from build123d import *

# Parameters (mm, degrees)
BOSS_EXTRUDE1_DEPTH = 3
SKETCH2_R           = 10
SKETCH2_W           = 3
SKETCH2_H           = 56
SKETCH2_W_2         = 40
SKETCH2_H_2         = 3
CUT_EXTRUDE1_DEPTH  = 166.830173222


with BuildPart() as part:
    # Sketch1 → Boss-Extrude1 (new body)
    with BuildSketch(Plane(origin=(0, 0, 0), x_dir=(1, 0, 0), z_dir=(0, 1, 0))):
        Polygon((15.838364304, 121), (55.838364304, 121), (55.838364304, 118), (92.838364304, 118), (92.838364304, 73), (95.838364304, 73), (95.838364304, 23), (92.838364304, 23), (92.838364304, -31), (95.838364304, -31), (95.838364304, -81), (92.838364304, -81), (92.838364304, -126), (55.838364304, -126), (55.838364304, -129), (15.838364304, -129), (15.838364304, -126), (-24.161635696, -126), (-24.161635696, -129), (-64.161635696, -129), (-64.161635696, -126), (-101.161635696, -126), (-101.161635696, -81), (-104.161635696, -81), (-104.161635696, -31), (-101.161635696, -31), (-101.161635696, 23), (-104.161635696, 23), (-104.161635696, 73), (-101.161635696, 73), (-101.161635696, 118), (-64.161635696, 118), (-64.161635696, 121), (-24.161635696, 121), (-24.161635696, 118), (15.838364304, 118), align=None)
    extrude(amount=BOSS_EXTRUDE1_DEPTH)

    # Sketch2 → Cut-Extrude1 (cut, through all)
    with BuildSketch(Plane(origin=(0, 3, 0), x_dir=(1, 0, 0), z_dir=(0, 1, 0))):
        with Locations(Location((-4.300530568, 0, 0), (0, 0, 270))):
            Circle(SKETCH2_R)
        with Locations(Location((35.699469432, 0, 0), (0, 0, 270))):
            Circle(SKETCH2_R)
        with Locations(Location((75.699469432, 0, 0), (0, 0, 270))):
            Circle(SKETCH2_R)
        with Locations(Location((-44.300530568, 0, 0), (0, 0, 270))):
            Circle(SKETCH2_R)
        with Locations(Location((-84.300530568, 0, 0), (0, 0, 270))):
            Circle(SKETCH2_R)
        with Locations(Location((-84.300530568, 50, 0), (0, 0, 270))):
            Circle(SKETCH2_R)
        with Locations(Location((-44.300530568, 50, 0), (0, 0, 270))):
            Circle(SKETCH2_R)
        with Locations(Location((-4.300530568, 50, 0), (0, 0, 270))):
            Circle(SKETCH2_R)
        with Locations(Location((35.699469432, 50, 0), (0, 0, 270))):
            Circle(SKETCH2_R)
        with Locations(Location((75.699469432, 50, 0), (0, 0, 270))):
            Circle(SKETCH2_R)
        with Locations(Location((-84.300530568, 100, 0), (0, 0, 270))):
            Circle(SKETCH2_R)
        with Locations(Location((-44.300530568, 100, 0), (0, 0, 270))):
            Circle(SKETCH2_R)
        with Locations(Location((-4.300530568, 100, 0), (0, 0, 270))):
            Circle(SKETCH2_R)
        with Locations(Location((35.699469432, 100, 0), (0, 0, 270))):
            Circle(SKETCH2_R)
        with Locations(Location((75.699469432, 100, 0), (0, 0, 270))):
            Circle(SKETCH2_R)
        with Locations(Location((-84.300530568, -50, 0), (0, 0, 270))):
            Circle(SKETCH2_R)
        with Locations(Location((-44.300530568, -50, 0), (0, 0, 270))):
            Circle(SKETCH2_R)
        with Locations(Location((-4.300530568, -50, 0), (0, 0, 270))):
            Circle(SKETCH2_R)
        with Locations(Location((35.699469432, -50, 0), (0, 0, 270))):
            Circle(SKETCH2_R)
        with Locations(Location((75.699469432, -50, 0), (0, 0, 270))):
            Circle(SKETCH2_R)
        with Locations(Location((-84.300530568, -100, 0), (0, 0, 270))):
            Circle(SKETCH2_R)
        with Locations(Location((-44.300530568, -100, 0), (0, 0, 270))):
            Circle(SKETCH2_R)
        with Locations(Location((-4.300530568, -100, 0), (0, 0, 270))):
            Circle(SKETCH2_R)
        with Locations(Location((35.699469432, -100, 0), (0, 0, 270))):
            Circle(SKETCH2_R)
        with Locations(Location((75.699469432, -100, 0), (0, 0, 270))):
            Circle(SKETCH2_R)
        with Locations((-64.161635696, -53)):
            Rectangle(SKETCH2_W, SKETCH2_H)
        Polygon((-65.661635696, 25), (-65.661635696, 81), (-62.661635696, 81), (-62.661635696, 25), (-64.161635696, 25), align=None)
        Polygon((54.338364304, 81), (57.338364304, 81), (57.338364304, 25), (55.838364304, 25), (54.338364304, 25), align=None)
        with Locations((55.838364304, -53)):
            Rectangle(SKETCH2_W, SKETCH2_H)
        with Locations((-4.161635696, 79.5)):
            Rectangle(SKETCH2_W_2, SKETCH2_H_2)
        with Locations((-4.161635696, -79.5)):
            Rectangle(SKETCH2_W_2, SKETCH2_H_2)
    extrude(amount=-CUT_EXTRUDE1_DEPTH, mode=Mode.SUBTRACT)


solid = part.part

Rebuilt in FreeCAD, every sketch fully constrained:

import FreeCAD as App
import Part
import Sketcher
Q = App.Units.Quantity


def add_polygon(sketch, points):
    """Adds a closed chain of lines whose ends are joined by coincident constraints."""
    first, n = sketch.GeometryCount, len(points)
    for a, b in zip(points, points[1:] + points[:1]):
        sketch.addGeometry(Part.LineSegment(App.Vector(*a, 0), App.Vector(*b, 0)), False)
    for i in range(n):
        sketch.addConstraint(Sketcher.Constraint("Coincident", first + i, 2, first + (i + 1) % n, 1))

doc = App.newDocument("Part")
body = doc.addObject("PartDesign::Body", "Body")

# Sketch on XZ plane
sketch1 = body.newObject("Sketcher::SketchObject", "Sketch")
sketch1.AttachmentSupport = (doc.getObject("XZ_Plane"), [""])
sketch1.MapMode = "FlatFace"
add_polygon(sketch1, [(55.8, -121), (15.8, -121), (15.8, -118), (-24.2, -118), (-24.2, -121), (-64.2, -121), (-64.2, -118), (-101.2, -118), (-101.2, -73), (-104.2, -73), (-104.2, -23), (-101.2, -23), (-101.2, 31), (-104.2, 31), (-104.2, 81), (-101.2, 81), (-101.2, 126), (-64.2, 126), (-64.2, 129), (-24.2, 129), (-24.2, 126), (15.8, 126), (15.8, 129), (55.8, 129), (55.8, 126), (92.8, 126), (92.8, 81), (95.8, 81), (95.8, 31), (92.8, 31), (92.8, -23), (95.8, -23), (95.8, -73), (92.8, -73), (92.8, -118), (55.8, -118)])  # lines 0-35
sketch1.addConstraint(Sketcher.Constraint("Horizontal", 0))
sketch1.addConstraint(Sketcher.Constraint("Vertical", 1))
sketch1.addConstraint(Sketcher.Constraint("Horizontal", 2))
sketch1.addConstraint(Sketcher.Constraint("Vertical", 3))
sketch1.addConstraint(Sketcher.Constraint("Horizontal", 4))
sketch1.addConstraint(Sketcher.Constraint("Vertical", 5))
sketch1.addConstraint(Sketcher.Constraint("Horizontal", 6))
sketch1.addConstraint(Sketcher.Constraint("Vertical", 7))
sketch1.addConstraint(Sketcher.Constraint("Horizontal", 8))
sketch1.addConstraint(Sketcher.Constraint("Vertical", 9))
sketch1.addConstraint(Sketcher.Constraint("Horizontal", 10))
sketch1.addConstraint(Sketcher.Constraint("Vertical", 11))
sketch1.addConstraint(Sketcher.Constraint("Horizontal", 12))
sketch1.addConstraint(Sketcher.Constraint("Vertical", 13))
sketch1.addConstraint(Sketcher.Constraint("Horizontal", 14))
sketch1.addConstraint(Sketcher.Constraint("Vertical", 15))
sketch1.addConstraint(Sketcher.Constraint("Horizontal", 16))
sketch1.addConstraint(Sketcher.Constraint("Vertical", 17))
sketch1.addConstraint(Sketcher.Constraint("Horizontal", 18))
sketch1.addConstraint(Sketcher.Constraint("Vertical", 19))
sketch1.addConstraint(Sketcher.Constraint("Horizontal", 20))
sketch1.addConstraint(Sketcher.Constraint("Vertical", 21))
sketch1.addConstraint(Sketcher.Constraint("Horizontal", 22))
sketch1.addConstraint(Sketcher.Constraint("Vertical", 23))
sketch1.addConstraint(Sketcher.Constraint("Horizontal", 24))
sketch1.addConstraint(Sketcher.Constraint("Vertical", 25))
sketch1.addConstraint(Sketcher.Constraint("Horizontal", 26))
sketch1.addConstraint(Sketcher.Constraint("Vertical", 27))
sketch1.addConstraint(Sketcher.Constraint("Horizontal", 28))
sketch1.addConstraint(Sketcher.Constraint("Vertical", 29))
sketch1.addConstraint(Sketcher.Constraint("Horizontal", 30))
sketch1.addConstraint(Sketcher.Constraint("Vertical", 31))
sketch1.addConstraint(Sketcher.Constraint("Horizontal", 32))
sketch1.addConstraint(Sketcher.Constraint("Vertical", 33))
sketch1.addConstraint(Sketcher.Constraint("Horizontal", 34))
sketch1.addConstraint(Sketcher.Constraint("Vertical", 35))
sketch1.addConstraint(Sketcher.Constraint("Horizontal", 0, 2, 3, 2))
sketch1.addConstraint(Sketcher.Constraint("Horizontal", 2, 2, 5, 2))
sketch1.addConstraint(Sketcher.Constraint("Horizontal", 16, 2, 19, 2))
sketch1.addConstraint(Sketcher.Constraint("Horizontal", 18, 2, 21, 2))
sketch1.addConstraint(Sketcher.Constraint("Horizontal", 20, 2, 23, 2))
sketch1.addConstraint(Sketcher.Constraint("Horizontal", 14, 2, 25, 2))
sketch1.addConstraint(Sketcher.Constraint("Horizontal", 12, 2, 27, 2))
sketch1.addConstraint(Sketcher.Constraint("Horizontal", 10, 2, 29, 2))
sketch1.addConstraint(Sketcher.Constraint("Horizontal", 8, 2, 31, 2))
sketch1.addConstraint(Sketcher.Constraint("Horizontal", 6, 2, 33, 2))
sketch1.addConstraint(Sketcher.Constraint("Vertical", 7, 2, 10, 2))
sketch1.addConstraint(Sketcher.Constraint("Vertical", 9, 2, 12, 2))
sketch1.addConstraint(Sketcher.Constraint("Vertical", 11, 2, 14, 2))
sketch1.addConstraint(Sketcher.Constraint("Vertical", 5, 2, 16, 2))
sketch1.addConstraint(Sketcher.Constraint("Vertical", 3, 2, 18, 2))
sketch1.addConstraint(Sketcher.Constraint("Vertical", 1, 2, 20, 2))
sketch1.addConstraint(Sketcher.Constraint("Vertical", 25, 2, 28, 2))
sketch1.addConstraint(Sketcher.Constraint("Vertical", 27, 2, 30, 2))
sketch1.addConstraint(Sketcher.Constraint("Vertical", 29, 2, 32, 2))
sketch1.addConstraint(Sketcher.Constraint("Vertical", 23, 2, 34, 2))
sketch1.addConstraint(Sketcher.Constraint("Equal", 0, 2))
sketch1.addConstraint(Sketcher.Constraint("Equal", 2, 4))
sketch1.addConstraint(Sketcher.Constraint("Equal", 16, 24))
sketch1.addConstraint(Sketcher.Constraint("Equal", 14, 26))
sketch1.addConstraint(Sketcher.Constraint("Equal", 32, 1))
sketch1.addConstraint(Sketcher.Constraint("Equal", 9, 13))
sketch1.addConstraint(Sketcher.Constraint("Equal", 7, 15))
sketch1.addConstraint(Sketcher.Constraint("Equal", 5, 17))
sketch1.addConstraint(Sketcher.Constraint("DistanceX", 0, 2, 0, 1, Q("40 mm")))
sketch1.addConstraint(Sketcher.Constraint("DistanceX", 6, 2, 6, 1, Q("37 mm")))
sketch1.addConstraint(Sketcher.Constraint("DistanceX", 8, 2, 8, 1, Q("3 mm")))
sketch1.addConstraint(Sketcher.Constraint("DistanceY", 7, 1, 7, 2, Q("45 mm")))
sketch1.addConstraint(Sketcher.Constraint("DistanceY", 9, 1, 9, 2, Q("50 mm")))
sketch1.addConstraint(Sketcher.Constraint("DistanceY", 11, 1, 11, 2, Q("54 mm")))
sketch1.addConstraint(Sketcher.Constraint("DistanceY", 0, 2, -1, 1, Q("121 mm")))
sketch1.addConstraint(Sketcher.Constraint("DistanceX", -1, 1, 0, 2, Q("15.838364 mm")))
pad1 = body.newObject("PartDesign::Pad", "Pad")
pad1.Profile = sketch1
pad1.Length = 3
pad1.Reversed = True

# Sketch on XZ plane
sketch2 = body.newObject("Sketcher::SketchObject", "Sketch001")
sketch2.AttachmentSupport = (doc.getObject("XZ_Plane"), [""])
sketch2.MapMode = "FlatFace"
sketch2.AttachmentOffset = App.Placement(App.Vector(0, 0, -3), App.Rotation())
sketch2.addGeometry(Part.Circle(App.Vector(-4.3, 0, 0), App.Vector(0, 0, 1), 10), False)  # 0
sketch2.addGeometry(Part.Circle(App.Vector(35.7, 0, 0), App.Vector(0, 0, 1), 10), False)  # 1
sketch2.addGeometry(Part.Circle(App.Vector(75.7, 0, 0), App.Vector(0, 0, 1), 10), False)  # 2
sketch2.addGeometry(Part.Circle(App.Vector(-44.3, 0, 0), App.Vector(0, 0, 1), 10), False)  # 3
sketch2.addGeometry(Part.Circle(App.Vector(-84.3, 0, 0), App.Vector(0, 0, 1), 10), False)  # 4
sketch2.addGeometry(Part.Circle(App.Vector(-84.3, -50, 0), App.Vector(0, 0, 1), 10), False)  # 5
sketch2.addGeometry(Part.Circle(App.Vector(-44.3, -50, 0), App.Vector(0, 0, 1), 10), False)  # 6
sketch2.addGeometry(Part.Circle(App.Vector(-4.3, -50, 0), App.Vector(0, 0, 1), 10), False)  # 7
sketch2.addGeometry(Part.Circle(App.Vector(35.7, -50, 0), App.Vector(0, 0, 1), 10), False)  # 8
sketch2.addGeometry(Part.Circle(App.Vector(75.7, -50, 0), App.Vector(0, 0, 1), 10), False)  # 9
sketch2.addGeometry(Part.Circle(App.Vector(-84.3, -100, 0), App.Vector(0, 0, 1), 10), False)  # 10
sketch2.addGeometry(Part.Circle(App.Vector(-44.3, -100, 0), App.Vector(0, 0, 1), 10), False)  # 11
sketch2.addGeometry(Part.Circle(App.Vector(-4.3, -100, 0), App.Vector(0, 0, 1), 10), False)  # 12
sketch2.addGeometry(Part.Circle(App.Vector(35.7, -100, 0), App.Vector(0, 0, 1), 10), False)  # 13
sketch2.addGeometry(Part.Circle(App.Vector(75.7, -100, 0), App.Vector(0, 0, 1), 10), False)  # 14
sketch2.addGeometry(Part.Circle(App.Vector(-84.3, 50, 0), App.Vector(0, 0, 1), 10), False)  # 15
sketch2.addGeometry(Part.Circle(App.Vector(-44.3, 50, 0), App.Vector(0, 0, 1), 10), False)  # 16
sketch2.addGeometry(Part.Circle(App.Vector(-4.3, 50, 0), App.Vector(0, 0, 1), 10), False)  # 17
sketch2.addGeometry(Part.Circle(App.Vector(35.7, 50, 0), App.Vector(0, 0, 1), 10), False)  # 18
sketch2.addGeometry(Part.Circle(App.Vector(75.7, 50, 0), App.Vector(0, 0, 1), 10), False)  # 19
sketch2.addGeometry(Part.Circle(App.Vector(-84.3, 100, 0), App.Vector(0, 0, 1), 10), False)  # 20
sketch2.addGeometry(Part.Circle(App.Vector(-44.3, 100, 0), App.Vector(0, 0, 1), 10), False)  # 21
sketch2.addGeometry(Part.Circle(App.Vector(-4.3, 100, 0), App.Vector(0, 0, 1), 10), False)  # 22
sketch2.addGeometry(Part.Circle(App.Vector(35.7, 100, 0), App.Vector(0, 0, 1), 10), False)  # 23
sketch2.addGeometry(Part.Circle(App.Vector(75.7, 100, 0), App.Vector(0, 0, 1), 10), False)  # 24
add_polygon(sketch2, [(-65.7, 25), (-65.7, 81), (-62.7, 81), (-62.7, 25)])  # lines 25-28
add_polygon(sketch2, [(-65.7, -81), (-65.7, -25), (-62.7, -25), (-62.7, -81)])  # lines 29-32
add_polygon(sketch2, [(57.3, -81), (54.3, -81), (54.3, -25), (57.3, -25)])  # lines 33-36
add_polygon(sketch2, [(54.3, 25), (54.3, 81), (57.3, 81), (57.3, 25)])  # lines 37-40
add_polygon(sketch2, [(-24.2, -81), (-24.2, -78), (15.8, -78), (15.8, -81)])  # lines 41-44
add_polygon(sketch2, [(-24.2, 78), (-24.2, 81), (15.8, 81), (15.8, 78)])  # lines 45-48
sketch2.addConstraint(Sketcher.Constraint("Vertical", 25))
sketch2.addConstraint(Sketcher.Constraint("Horizontal", 26))
sketch2.addConstraint(Sketcher.Constraint("Vertical", 27))
sketch2.addConstraint(Sketcher.Constraint("Horizontal", 28))
sketch2.addConstraint(Sketcher.Constraint("Vertical", 29))
sketch2.addConstraint(Sketcher.Constraint("Horizontal", 30))
sketch2.addConstraint(Sketcher.Constraint("Vertical", 31))
sketch2.addConstraint(Sketcher.Constraint("Horizontal", 32))
sketch2.addConstraint(Sketcher.Constraint("Horizontal", 33))
sketch2.addConstraint(Sketcher.Constraint("Vertical", 34))
sketch2.addConstraint(Sketcher.Constraint("Horizontal", 35))
sketch2.addConstraint(Sketcher.Constraint("Vertical", 36))
sketch2.addConstraint(Sketcher.Constraint("Vertical", 37))
sketch2.addConstraint(Sketcher.Constraint("Horizontal", 38))
sketch2.addConstraint(Sketcher.Constraint("Vertical", 39))
sketch2.addConstraint(Sketcher.Constraint("Horizontal", 40))
sketch2.addConstraint(Sketcher.Constraint("Vertical", 41))
sketch2.addConstraint(Sketcher.Constraint("Horizontal", 42))
sketch2.addConstraint(Sketcher.Constraint("Vertical", 43))
sketch2.addConstraint(Sketcher.Constraint("Horizontal", 44))
sketch2.addConstraint(Sketcher.Constraint("Vertical", 45))
sketch2.addConstraint(Sketcher.Constraint("Horizontal", 46))
sketch2.addConstraint(Sketcher.Constraint("Vertical", 47))
sketch2.addConstraint(Sketcher.Constraint("Horizontal", 48))
sketch2.addConstraint(Sketcher.Constraint("Equal", 0, 1))
sketch2.addConstraint(Sketcher.Constraint("Equal", 1, 2))
sketch2.addConstraint(Sketcher.Constraint("Equal", 2, 3))
sketch2.addConstraint(Sketcher.Constraint("Equal", 3, 4))
sketch2.addConstraint(Sketcher.Constraint("Equal", 4, 5))
sketch2.addConstraint(Sketcher.Constraint("Equal", 5, 6))
sketch2.addConstraint(Sketcher.Constraint("Equal", 6, 7))
sketch2.addConstraint(Sketcher.Constraint("Equal", 7, 8))
sketch2.addConstraint(Sketcher.Constraint("Equal", 8, 9))
sketch2.addConstraint(Sketcher.Constraint("Equal", 9, 10))
sketch2.addConstraint(Sketcher.Constraint("Equal", 10, 11))
sketch2.addConstraint(Sketcher.Constraint("Equal", 11, 12))
sketch2.addConstraint(Sketcher.Constraint("Equal", 12, 13))
sketch2.addConstraint(Sketcher.Constraint("Equal", 13, 14))
sketch2.addConstraint(Sketcher.Constraint("Equal", 14, 15))
sketch2.addConstraint(Sketcher.Constraint("Equal", 15, 16))
sketch2.addConstraint(Sketcher.Constraint("Equal", 16, 17))
sketch2.addConstraint(Sketcher.Constraint("Equal", 17, 18))
sketch2.addConstraint(Sketcher.Constraint("Equal", 18, 19))
sketch2.addConstraint(Sketcher.Constraint("Equal", 19, 20))
sketch2.addConstraint(Sketcher.Constraint("Equal", 20, 21))
sketch2.addConstraint(Sketcher.Constraint("Equal", 21, 22))
sketch2.addConstraint(Sketcher.Constraint("Equal", 22, 23))
sketch2.addConstraint(Sketcher.Constraint("Equal", 23, 24))
sketch2.addConstraint(Sketcher.Constraint("Symmetric", 5, 3, 15, 3, -1))
sketch2.addConstraint(Sketcher.Constraint("Symmetric", 6, 3, 16, 3, -1))
sketch2.addConstraint(Sketcher.Constraint("Symmetric", 7, 3, 17, 3, -1))
sketch2.addConstraint(Sketcher.Constraint("Symmetric", 8, 3, 18, 3, -1))
sketch2.addConstraint(Sketcher.Constraint("Symmetric", 9, 3, 19, 3, -1))
sketch2.addConstraint(Sketcher.Constraint("Symmetric", 10, 3, 20, 3, -1))
sketch2.addConstraint(Sketcher.Constraint("Symmetric", 11, 3, 21, 3, -1))
sketch2.addConstraint(Sketcher.Constraint("Symmetric", 12, 3, 22, 3, -1))
sketch2.addConstraint(Sketcher.Constraint("Symmetric", 13, 3, 23, 3, -1))
sketch2.addConstraint(Sketcher.Constraint("Symmetric", 14, 3, 24, 3, -1))
sketch2.addConstraint(Sketcher.Constraint("Symmetric", 28, 2, 29, 2, -1))
sketch2.addConstraint(Sketcher.Constraint("Symmetric", 26, 2, 31, 2, -1))
sketch2.addConstraint(Sketcher.Constraint("Symmetric", 33, 2, 37, 2, -1))
sketch2.addConstraint(Sketcher.Constraint("Symmetric", 35, 2, 39, 2, -1))
sketch2.addConstraint(Sketcher.Constraint("Symmetric", 44, 2, 45, 2, -1))
sketch2.addConstraint(Sketcher.Constraint("Symmetric", 42, 2, 47, 2, -1))
sketch2.addConstraint(Sketcher.Constraint("PointOnObject", 0, 3, -1))
sketch2.addConstraint(Sketcher.Constraint("PointOnObject", 1, 3, -1))
sketch2.addConstraint(Sketcher.Constraint("PointOnObject", 2, 3, -1))
sketch2.addConstraint(Sketcher.Constraint("PointOnObject", 3, 3, -1))
sketch2.addConstraint(Sketcher.Constraint("PointOnObject", 4, 3, -1))
sketch2.addConstraint(Sketcher.Constraint("Horizontal", 5, 3, 6, 3))
sketch2.addConstraint(Sketcher.Constraint("Horizontal", 6, 3, 7, 3))
sketch2.addConstraint(Sketcher.Constraint("Horizontal", 7, 3, 8, 3))
sketch2.addConstraint(Sketcher.Constraint("Horizontal", 8, 3, 9, 3))
sketch2.addConstraint(Sketcher.Constraint("Horizontal", 10, 3, 11, 3))
sketch2.addConstraint(Sketcher.Constraint("Horizontal", 11, 3, 12, 3))
sketch2.addConstraint(Sketcher.Constraint("Horizontal", 12, 3, 13, 3))
sketch2.addConstraint(Sketcher.Constraint("Horizontal", 13, 3, 14, 3))
sketch2.addConstraint(Sketcher.Constraint("Horizontal", 32, 2, 33, 2))
sketch2.addConstraint(Sketcher.Constraint("Horizontal", 30, 2, 34, 2))
sketch2.addConstraint(Sketcher.Constraint("Horizontal", 36, 2, 43, 2))
sketch2.addConstraint(Sketcher.Constraint("Vertical", 4, 3, 5, 3))
sketch2.addConstraint(Sketcher.Constraint("Vertical", 3, 3, 6, 3))
sketch2.addConstraint(Sketcher.Constraint("Vertical", 0, 3, 7, 3))
sketch2.addConstraint(Sketcher.Constraint("Vertical", 1, 3, 8, 3))
sketch2.addConstraint(Sketcher.Constraint("Vertical", 2, 3, 9, 3))
sketch2.addConstraint(Sketcher.Constraint("Vertical", 5, 3, 10, 3))
sketch2.addConstraint(Sketcher.Constraint("Vertical", 6, 3, 11, 3))
sketch2.addConstraint(Sketcher.Constraint("Vertical", 7, 3, 12, 3))
sketch2.addConstraint(Sketcher.Constraint("Vertical", 8, 3, 13, 3))
sketch2.addConstraint(Sketcher.Constraint("Vertical", 9, 3, 14, 3))
sketch2.addConstraint(Sketcher.Constraint("Equal", 32, 33))
sketch2.addConstraint(Sketcher.Constraint("Equal", 40, 41))
sketch2.addConstraint(Sketcher.Constraint("Diameter", 0, Q("20 mm")))
sketch2.addConstraint(Sketcher.Constraint("DistanceX", 26, 1, 26, 2, Q("3 mm")))
sketch2.addConstraint(Sketcher.Constraint("DistanceX", 42, 1, 42, 2, Q("40 mm")))
sketch2.addConstraint(Sketcher.Constraint("DistanceY", 25, 1, 25, 2, Q("56 mm")))
sketch2.addConstraint(Sketcher.Constraint("DistanceY", 5, 3, -1, 1, Q("50 mm")))
sketch2.addConstraint(Sketcher.Constraint("DistanceY", 10, 3, -1, 1, Q("100 mm")))
sketch2.addConstraint(Sketcher.Constraint("DistanceY", -1, 1, 25, 2, Q("81 mm")))
sketch2.addConstraint(Sketcher.Constraint("DistanceX", 0, 3, 1, 3, Q("40 mm")))
sketch2.addConstraint(Sketcher.Constraint("DistanceX", 1, 3, 2, 3, Q("40 mm")))
sketch2.addConstraint(Sketcher.Constraint("DistanceX", 3, 3, 0, 3, Q("40 mm")))
sketch2.addConstraint(Sketcher.Constraint("DistanceX", 4, 3, 3, 3, Q("40 mm")))
sketch2.addConstraint(Sketcher.Constraint("DistanceX", 31, 2, 41, 2, Q("38.5 mm")))
sketch2.addConstraint(Sketcher.Constraint("DistanceX", 42, 2, 33, 2, Q("38.5 mm")))
sketch2.addConstraint(Sketcher.Constraint("DistanceX", 0, 3, -1, 1, Q("4.300531 mm")))
sketch2.addConstraint(Sketcher.Constraint("DistanceX", 25, 2, -1, 1, Q("65.661636 mm")))
pocket1 = body.newObject("PartDesign::Pocket", "Pocket")
pocket1.Profile = sketch2
pocket1.Type = "ThroughAll"
pocket1.Reversed = True

doc.recompute()
